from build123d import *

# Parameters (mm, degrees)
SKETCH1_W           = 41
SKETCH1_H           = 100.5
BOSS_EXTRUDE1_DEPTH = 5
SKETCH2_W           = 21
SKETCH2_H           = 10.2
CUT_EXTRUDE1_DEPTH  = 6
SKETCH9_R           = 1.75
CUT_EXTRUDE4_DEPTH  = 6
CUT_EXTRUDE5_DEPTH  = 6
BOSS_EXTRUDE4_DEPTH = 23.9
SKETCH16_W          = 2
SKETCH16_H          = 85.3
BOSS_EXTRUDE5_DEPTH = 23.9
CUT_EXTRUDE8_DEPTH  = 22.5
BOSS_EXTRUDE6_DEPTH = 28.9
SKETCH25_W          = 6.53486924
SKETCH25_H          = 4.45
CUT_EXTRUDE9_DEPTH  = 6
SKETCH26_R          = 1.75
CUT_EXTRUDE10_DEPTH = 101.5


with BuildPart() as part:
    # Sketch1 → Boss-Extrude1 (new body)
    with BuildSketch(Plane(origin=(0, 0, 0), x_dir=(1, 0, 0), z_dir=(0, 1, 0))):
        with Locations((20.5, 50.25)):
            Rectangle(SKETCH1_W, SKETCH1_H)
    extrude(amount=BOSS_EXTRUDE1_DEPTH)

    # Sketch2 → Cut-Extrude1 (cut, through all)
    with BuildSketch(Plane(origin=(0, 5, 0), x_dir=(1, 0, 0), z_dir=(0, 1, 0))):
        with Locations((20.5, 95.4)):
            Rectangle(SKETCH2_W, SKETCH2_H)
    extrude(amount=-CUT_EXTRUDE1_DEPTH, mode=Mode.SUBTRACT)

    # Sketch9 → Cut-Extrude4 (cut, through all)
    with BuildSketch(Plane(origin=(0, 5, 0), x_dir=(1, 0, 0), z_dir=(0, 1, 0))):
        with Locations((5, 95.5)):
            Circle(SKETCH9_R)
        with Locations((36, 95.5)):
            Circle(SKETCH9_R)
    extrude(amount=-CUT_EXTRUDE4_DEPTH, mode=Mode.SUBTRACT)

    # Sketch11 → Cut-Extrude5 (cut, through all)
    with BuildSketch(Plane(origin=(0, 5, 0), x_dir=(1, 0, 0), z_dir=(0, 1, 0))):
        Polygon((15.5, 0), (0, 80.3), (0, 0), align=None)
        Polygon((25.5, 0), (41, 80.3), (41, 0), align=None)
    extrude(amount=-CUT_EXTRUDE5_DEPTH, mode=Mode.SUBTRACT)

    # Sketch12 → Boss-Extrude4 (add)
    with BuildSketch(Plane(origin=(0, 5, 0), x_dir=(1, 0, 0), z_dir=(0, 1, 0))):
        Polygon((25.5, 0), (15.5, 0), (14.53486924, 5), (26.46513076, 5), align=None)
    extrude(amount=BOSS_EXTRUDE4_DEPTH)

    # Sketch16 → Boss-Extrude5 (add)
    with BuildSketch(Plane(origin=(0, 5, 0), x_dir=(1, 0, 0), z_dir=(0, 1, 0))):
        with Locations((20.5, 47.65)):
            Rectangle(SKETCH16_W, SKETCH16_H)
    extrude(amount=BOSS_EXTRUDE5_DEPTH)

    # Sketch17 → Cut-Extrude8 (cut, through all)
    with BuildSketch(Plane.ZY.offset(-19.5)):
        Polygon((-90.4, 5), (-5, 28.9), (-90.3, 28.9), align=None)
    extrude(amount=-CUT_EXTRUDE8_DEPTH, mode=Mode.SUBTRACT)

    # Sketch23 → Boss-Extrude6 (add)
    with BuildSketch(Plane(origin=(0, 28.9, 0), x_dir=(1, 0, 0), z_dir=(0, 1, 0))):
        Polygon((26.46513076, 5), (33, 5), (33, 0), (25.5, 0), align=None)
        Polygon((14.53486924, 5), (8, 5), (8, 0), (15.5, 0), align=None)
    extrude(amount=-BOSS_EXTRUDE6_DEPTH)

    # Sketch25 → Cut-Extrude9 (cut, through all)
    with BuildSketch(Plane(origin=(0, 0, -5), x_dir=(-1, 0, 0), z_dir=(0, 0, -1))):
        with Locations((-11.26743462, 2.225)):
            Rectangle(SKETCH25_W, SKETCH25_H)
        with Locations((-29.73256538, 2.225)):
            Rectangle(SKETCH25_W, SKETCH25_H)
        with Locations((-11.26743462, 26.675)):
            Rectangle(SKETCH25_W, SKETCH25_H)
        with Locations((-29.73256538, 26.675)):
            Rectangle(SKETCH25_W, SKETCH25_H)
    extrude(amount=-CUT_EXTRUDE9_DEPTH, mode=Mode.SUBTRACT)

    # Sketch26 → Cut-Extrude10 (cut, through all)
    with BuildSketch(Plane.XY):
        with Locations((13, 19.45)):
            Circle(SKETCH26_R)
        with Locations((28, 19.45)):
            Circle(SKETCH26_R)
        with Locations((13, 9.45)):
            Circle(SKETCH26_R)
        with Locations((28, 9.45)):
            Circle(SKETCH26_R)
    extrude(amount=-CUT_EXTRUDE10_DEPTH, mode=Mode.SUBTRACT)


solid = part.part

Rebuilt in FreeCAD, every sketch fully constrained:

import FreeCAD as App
import Part
import Sketcher

V = App.Vector


def add_polygon(sketch, points):
    """Adds a closed chain of lines whose ends are joined by coincident constraints."""
    first, n = sketch.GeometryCount, len(points)
    for a, b in zip(points, points[1:] + points[:1]):
        sketch.addGeometry(Part.LineSegment(App.Vector(*a, 0), App.Vector(*b, 0)), False)
    for i in range(n):
        sketch.addConstraint(Sketcher.Constraint("Coincident", first + i, 2, first + (i + 1) % n, 1))

doc = App.newDocument("Part")
body = doc.addObject("PartDesign::Body", "Body")

# Sketch on XZ plane
sketch1 = body.newObject("Sketcher::SketchObject", "Sketch")
sketch1.AttachmentSupport = (doc.getObject("XZ_Plane"), [""])
sketch1.MapMode = "FlatFace"
add_polygon(sketch1, [(0, -100.5), (0, 0), (41, 0), (41, -100.5)])  # lines 0-3
sketch1.addConstraint(Sketcher.Constraint("Vertical", 0))
sketch1.addConstraint(Sketcher.Constraint("Horizontal", 1))
sketch1.addConstraint(Sketcher.Constraint("Vertical", 2))
sketch1.addConstraint(Sketcher.Constraint("Horizontal", 3))
sketch1.addConstraint(Sketcher.Constraint("Coincident", 0, 2, -1, 1))
sketch1.addConstraint(Sketcher.Constraint("DistanceX", 1, 1, 1, 2, 41.0))
sketch1.addConstraint(Sketcher.Constraint("DistanceY", 0, 1, 0, 2, 100.5))
pad1 = body.newObject("PartDesign::Pad", "Pad")
pad1.Profile = sketch1
pad1.Length = 5
pad1.Reversed = True

# Sketch on XZ plane
sketch2 = body.newObject("Sketcher::SketchObject", "Sketch001")
sketch2.AttachmentSupport = (doc.getObject("XZ_Plane"), [""])
sketch2.MapMode = "FlatFace"
sketch2.AttachmentOffset = App.Placement(V(0, 0, -5), App.Rotation())
add_polygon(sketch2, [(10, -100.5), (10, -90.3), (31, -90.3), (31, -100.5)])  # lines 0-3
sketch2.addConstraint(Sketcher.Constraint("Vertical", 0))
sketch2.addConstraint(Sketcher.Constraint("Horizontal", 1))
sketch2.addConstraint(Sketcher.Constraint("Vertical", 2))
sketch2.addConstraint(Sketcher.Constraint("Horizontal", 3))
sketch2.addConstraint(Sketcher.Constraint("DistanceX", 1, 1, 1, 2, 21.0))
sketch2.addConstraint(Sketcher.Constraint("DistanceY", 0, 1, 0, 2, 10.2))
sketch2.addConstraint(Sketcher.Constraint("DistanceX", -1, 1, 0, 2, 10.0))
sketch2.addConstraint(Sketcher.Constraint("DistanceY", 0, 2, -1, 1, 90.3))
pocket1 = body.newObject("PartDesign::Pocket", "Pocket")
pocket1.Profile = sketch2
pocket1.Type = "ThroughAll"
pocket1.Reversed = True

# Sketch on XZ plane
sketch3 = body.newObject("Sketcher::SketchObject", "Sketch002")
sketch3.AttachmentSupport = (doc.getObject("XZ_Plane"), [""])
sketch3.MapMode = "FlatFace"
sketch3.AttachmentOffset = App.Placement(V(0, 0, -5), App.Rotation())
sketch3.addGeometry(Part.Circle(V(5, -95.5, 0), V(0, 0, 1), 1.75), False)
sketch3.addGeometry(Part.Circle(V(36, -95.5, 0), V(0, 0, 1), 1.75), False)
sketch3.addConstraint(Sketcher.Constraint("Equal", 0, 1))
sketch3.addConstraint(Sketcher.Constraint("Horizontal", 0, 3, 1, 3))
sketch3.addConstraint(Sketcher.Constraint("Diameter", 0, 3.5))
sketch3.addConstraint(Sketcher.Constraint("DistanceX", -1, 1, 0, 3, 5.0))
sketch3.addConstraint(Sketcher.Constraint("DistanceX", -1, 1, 1, 3, 36.0))
sketch3.addConstraint(Sketcher.Constraint("DistanceY", 0, 3, -1, 1, 95.5))
pocket2 = body.newObject("PartDesign::Pocket", "Pocket001")
pocket2.Profile = sketch3
pocket2.Type = "ThroughAll"
pocket2.Reversed = True

# Sketch on XZ plane
sketch4 = body.newObject("Sketcher::SketchObject", "Sketch003")
sketch4.AttachmentSupport = (doc.getObject("XZ_Plane"), [""])
sketch4.MapMode = "FlatFace"
sketch4.AttachmentOffset = App.Placement(V(0, 0, -5), App.Rotation())
add_polygon(sketch4, [(15.5, 0), (0, -80.3), (0, 0)])  # lines 0-2
add_polygon(sketch4, [(41, -80.3), (25.5, 0), (41, 0)])  # lines 3-5
sketch4.addConstraint(Sketcher.Constraint("Vertical", 1))
sketch4.addConstraint(Sketcher.Constraint("Horizontal", 2))
sketch4.addConstraint(Sketcher.Constraint("Horizontal", 4))
sketch4.addConstraint(Sketcher.Constraint("Vertical", 5))
sketch4.addConstraint(Sketcher.Constraint("Coincident", 1, 2, -1, 1))
sketch4.addConstraint(Sketcher.Constraint("PointOnObject", 3, 2, -1))
sketch4.addConstraint(Sketcher.Constraint("Horizontal", 0, 2, 5, 2))
sketch4.addConstraint(Sketcher.Constraint("Equal", 2, 4))
sketch4.addConstraint(Sketcher.Constraint("DistanceX", 2, 1, 2, 2, 15.5))
sketch4.addConstraint(Sketcher.Constraint("DistanceY", 1, 1, 1, 2, 80.3))
sketch4.addConstraint(Sketcher.Constraint("DistanceX", -1, 1, 4, 2, 41.0))
pocket3 = body.newObject("PartDesign::Pocket", "Pocket002")
pocket3.Profile = sketch4
pocket3.Type = "ThroughAll"
pocket3.Reversed = True

# Sketch on XZ plane
sketch5 = body.newObject("Sketcher::SketchObject", "Sketch004")
sketch5.AttachmentSupport = (doc.getObject("XZ_Plane"), [""])
sketch5.MapMode = "FlatFace"
sketch5.AttachmentOffset = App.Placement(V(0, 0, -5), App.Rotation())
add_polygon(sketch5, [(15.5, 0), (25.5, 0), (26.465131, -5), (14.534869, -5)])  # lines 0-3
sketch5.addConstraint(Sketcher.Constraint("Horizontal", 0))
sketch5.addConstraint(Sketcher.Constraint("Horizontal", 2))
sketch5.addConstraint(Sketcher.Constraint("PointOnObject", 0, 2, -1))
sketch5.addConstraint(Sketcher.Constraint("Equal", 1, 3))
sketch5.addConstraint(Sketcher.Constraint("DistanceX", 0, 1, 0, 2, 10.0))
sketch5.addConstraint(Sketcher.Constraint("DistanceY", 1, 2, -1, 1, 5.0))
sketch5.addConstraint(Sketcher.Constraint("DistanceX", -1, 1, 0, 2, 25.5))
sketch5.addConstraint(Sketcher.Constraint("DistanceX", 2, 2, 2, 1, 11.930262))
pad2 = body.newObject("PartDesign::Pad", "Pad001")
pad2.Profile = sketch5
pad2.Length = 23.9
pad2.Reversed = True

# Sketch on XZ plane
sketch6 = body.newObject("Sketcher::SketchObject", "Sketch005")
sketch6.AttachmentSupport = (doc.getObject("XZ_Plane"), [""])
sketch6.MapMode = "FlatFace"
sketch6.AttachmentOffset = App.Placement(V(0, 0, -5), App.Rotation())
add_polygon(sketch6, [(19.5, -90.3), (19.5, -5), (21.5, -5), (21.5, -90.3)])  # lines 0-3
sketch6.addConstraint(Sketcher.Constraint("Vertical", 0))
sketch6.addConstraint(Sketcher.Constraint("Horizontal", 1))
sketch6.addConstraint(Sketcher.Constraint("Vertical", 2))
sketch6.addConstraint(Sketcher.Constraint("Horizontal", 3))
sketch6.addConstraint(Sketcher.Constraint("DistanceX", 1, 1, 1, 2, 2.0))
sketch6.addConstraint(Sketcher.Constraint("DistanceY", 0, 1, 0, 2, 85.3))
sketch6.addConstraint(Sketcher.Constraint("DistanceY", 0, 2, -1, 1, 5.0))
sketch6.addConstraint(Sketcher.Constraint("DistanceX", -1, 1, 0, 2, 19.5))
pad3 = body.newObject("PartDesign::Pad", "Pad002")
pad3.Profile = sketch6
pad3.Length = 23.9
pad3.Reversed = True

# Sketch on YZ plane
sketch7 = body.newObject("Sketcher::SketchObject", "Sketch006")
sketch7.AttachmentSupport = (doc.getObject("YZ_Plane"), [""])
sketch7.MapMode = "FlatFace"
sketch7.AttachmentOffset = App.Placement(V(0, 0, 19.5), App.Rotation())
add_polygon(sketch7, [(5, -90.4), (28.9, -5), (28.9, -90.3)])  # lines 0-2
sketch7.addConstraint(Sketcher.Constraint("Vertical", 1))
sketch7.addConstraint(Sketcher.Constraint("DistanceY", 1, 2, 1, 1, 85.3))
sketch7.addConstraint(Sketcher.Constraint("DistanceY", 0, 2, -1, 1, 5.0))
sketch7.addConstraint(Sketcher.Constraint("DistanceX", -1, 1, 2, 2, 5.0))
sketch7.addConstraint(Sketcher.Constraint("DistanceX", -1, 1, 0, 2, 28.9))
sketch7.addConstraint(Sketcher.Constraint("DistanceY", 2, 2, -1, 1, 90.4))
pocket4 = body.newObject("PartDesign::Pocket", "Pocket003")
pocket4.Profile = sketch7
pocket4.Type = "ThroughAll"
pocket4.Reversed = True

# Sketch on XZ plane
sketch8 = body.newObject("Sketcher::SketchObject", "Sketch007")
sketch8.AttachmentSupport = (doc.getObject("XZ_Plane"), [""])
sketch8.MapMode = "FlatFace"
sketch8.AttachmentOffset = App.Placement(V(0, 0, -28.9), App.Rotation())
add_polygon(sketch8, [(33, -5), (26.465131, -5), (25.5, 0), (33, 0)])  # lines 0-3
add_polygon(sketch8, [(14.534869, -5), (8, -5), (8, 0), (15.5, 0)])  # lines 4-7
sketch8.addConstraint(Sketcher.Constraint("Horizontal", 0))
sketch8.addConstraint(Sketcher.Constraint("Horizontal", 2))
sketch8.addConstraint(Sketcher.Constraint("Vertical", 3))
sketch8.addConstraint(Sketcher.Constraint("Horizontal", 4))
sketch8.addConstraint(Sketcher.Constraint("Vertical", 5))
sketch8.addConstraint(Sketcher.Constraint("Horizontal", 6))
sketch8.addConstraint(Sketcher.Constraint("PointOnObject", 1, 2, -1))
sketch8.addConstraint(Sketcher.Constraint("PointOnObject", 5, 2, -1))
sketch8.addConstraint(Sketcher.Constraint("Horizontal", 3, 2, 4, 2))
sketch8.addConstraint(Sketcher.Constraint("Equal", 0, 4))
sketch8.addConstraint(Sketcher.Constraint("Equal", 2, 6))
sketch8.addConstraint(Sketcher.Constraint("DistanceY", 3, 2, 3, 1, 5.0))
sketch8.addConstraint(Sketcher.Constraint("DistanceX", 2, 1, 2, 2, 7.5))
sketch8.addConstraint(Sketcher.Constraint("DistanceX", -1, 1, 2, 2, 33.0))
sketch8.addConstraint(Sketcher.Constraint("DistanceX", -1, 1, 4, 2, 8.0))
sketch8.addConstraint(Sketcher.Constraint("DistanceX", 0, 2, 0, 1, 6.534869))
pad4 = body.newObject("PartDesign::Pad", "Pad003")
pad4.Profile = sketch8
pad4.Length = 28.9

# Sketch on XY plane
sketch9 = body.newObject("Sketcher::SketchObject", "Sketch008")
sketch9.AttachmentSupport = (doc.getObject("XY_Plane"), [""])
sketch9.MapMode = "FlatFace"
sketch9.AttachmentOffset = App.Placement(V(0, 0, -5), App.Rotation())
add_polygon(sketch9, [(14.534869, 4.45), (14.534869, 0), (8, 0), (8, 4.45)])  # lines 0-3
add_polygon(sketch9, [(33, 4.45), (33, 0), (26.465131, 0), (26.465131, 4.45)])  # lines 4-7
add_polygon(sketch9, [(14.534869, 28.9), (14.534869, 24.45), (8, 24.45), (8, 28.9)])  # lines 8-11
add_polygon(sketch9, [(33, 28.9), (33, 24.45), (26.465131, 24.45), (26.465131, 28.9)])  # lines 12-15
sketch9.addConstraint(Sketcher.Constraint("Vertical", 0))
sketch9.addConstraint(Sketcher.Constraint("Horizontal", 1))
sketch9.addConstraint(Sketcher.Constraint("Vertical", 2))
sketch9.addConstraint(Sketcher.Constraint("Horizontal", 3))
sketch9.addConstraint(Sketcher.Constraint("Vertical", 4))
sketch9.addConstraint(Sketcher.Constraint("Horizontal", 5))
sketch9.addConstraint(Sketcher.Constraint("Vertical", 6))
sketch9.addConstraint(Sketcher.Constraint("Horizontal", 7))
sketch9.addConstraint(Sketcher.Constraint("Vertical", 8))
sketch9.addConstraint(Sketcher.Constraint("Horizontal", 9))
sketch9.addConstraint(Sketcher.Constraint("Vertical", 10))
sketch9.addConstraint(Sketcher.Constraint("Horizontal", 11))
sketch9.addConstraint(Sketcher.Constraint("Vertical", 12))
sketch9.addConstraint(Sketcher.Constraint("Horizontal", 13))
sketch9.addConstraint(Sketcher.Constraint("Vertical", 14))
sketch9.addConstraint(Sketcher.Constraint("Horizontal", 15))
sketch9.addConstraint(Sketcher.Constraint("PointOnObject", 0, 2, -1))
sketch9.addConstraint(Sketcher.Constraint("PointOnObject", 4, 2, -1))
sketch9.addConstraint(Sketcher.Constraint("Horizontal", 3, 2, 6, 2))
sketch9.addConstraint(Sketcher.Constraint("Horizontal", 9, 2, 12, 2))
sketch9.addConstraint(Sketcher.Constraint("Horizontal", 11, 2, 14, 2))
sketch9.addConstraint(Sketcher.Constraint("Vertical", 3, 2, 8, 2))
sketch9.addConstraint(Sketcher.Constraint("Vertical", 2, 2, 9, 2))
sketch9.addConstraint(Sketcher.Constraint("Vertical", 7, 2, 12, 2))
sketch9.addConstraint(Sketcher.Constraint("Vertical", 6, 2, 13, 2))
sketch9.addConstraint(Sketcher.Constraint("Equal", 3, 5))
sketch9.addConstraint(Sketcher.Constraint("Equal", 6, 8))
sketch9.addConstraint(Sketcher.Constraint("DistanceX", -1, 1, 1, 2, 8.0))
sketch9.addConstraint(Sketcher.Constraint("DistanceX", -1, 1, 4, 2, 33.0))
sketch9.addConstraint(Sketcher.Constraint("DistanceY", 3, 2, 8, 2, 20.0))
sketch9.addConstraint(Sketcher.Constraint("DistanceY", 0, 2, 0, 1, 4.45))
sketch9.addConstraint(Sketcher.Constraint("DistanceX", 1, 2, 1, 1, 6.534869))
pocket5 = body.newObject("PartDesign::Pocket", "Pocket004")
pocket5.Profile = sketch9
pocket5.Type = "ThroughAll"
pocket5.Reversed = True

# Sketch on XY plane
sketch10 = body.newObject("Sketcher::SketchObject", "Sketch009")
sketch10.AttachmentSupport = (doc.getObject("XY_Plane"), [""])
sketch10.MapMode = "FlatFace"
sketch10.addGeometry(Part.Circle(V(13, 19.45, 0), V(0, 0, 1), 1.75), False)
sketch10.addGeometry(Part.Circle(V(28, 19.45, 0), V(0, 0, 1), 1.75), False)
sketch10.addGeometry(Part.Circle(V(13, 9.45, 0), V(0, 0, 1), 1.75), False)
sketch10.addGeometry(Part.Circle(V(28, 9.45, 0), V(0, 0, 1), 1.75), False)
sketch10.addConstraint(Sketcher.Constraint("Equal", 0, 1))
sketch10.addConstraint(Sketcher.Constraint("Equal", 1, 2))
sketch10.addConstraint(Sketcher.Constraint("Equal", 2, 3))
sketch10.addConstraint(Sketcher.Constraint("Horizontal", 0, 3, 1, 3))
sketch10.addConstraint(Sketcher.Constraint("Horizontal", 2, 3, 3, 3))
sketch10.addConstraint(Sketcher.Constraint("Vertical", 0, 3, 2, 3))
sketch10.addConstraint(Sketcher.Constraint("Vertical", 1, 3, 3, 3))
sketch10.addConstraint(Sketcher.Constraint("Diameter", 0, 3.5))
sketch10.addConstraint(Sketcher.Constraint("DistanceX", -1, 1, 0, 3, 13.0))
sketch10.addConstraint(Sketcher.Constraint("DistanceX", -1, 1, 1, 3, 28.0))
sketch10.addConstraint(Sketcher.Constraint("DistanceY", 2, 3, 0, 3, 10.0))
sketch10.addConstraint(Sketcher.Constraint("DistanceY", -1, 1, 0, 3, 19.45))
pocket6 = body.newObject("PartDesign::Pocket", "Pocket005")
pocket6.Profile = sketch10
pocket6.Type = "ThroughAll"

doc.recompute()
